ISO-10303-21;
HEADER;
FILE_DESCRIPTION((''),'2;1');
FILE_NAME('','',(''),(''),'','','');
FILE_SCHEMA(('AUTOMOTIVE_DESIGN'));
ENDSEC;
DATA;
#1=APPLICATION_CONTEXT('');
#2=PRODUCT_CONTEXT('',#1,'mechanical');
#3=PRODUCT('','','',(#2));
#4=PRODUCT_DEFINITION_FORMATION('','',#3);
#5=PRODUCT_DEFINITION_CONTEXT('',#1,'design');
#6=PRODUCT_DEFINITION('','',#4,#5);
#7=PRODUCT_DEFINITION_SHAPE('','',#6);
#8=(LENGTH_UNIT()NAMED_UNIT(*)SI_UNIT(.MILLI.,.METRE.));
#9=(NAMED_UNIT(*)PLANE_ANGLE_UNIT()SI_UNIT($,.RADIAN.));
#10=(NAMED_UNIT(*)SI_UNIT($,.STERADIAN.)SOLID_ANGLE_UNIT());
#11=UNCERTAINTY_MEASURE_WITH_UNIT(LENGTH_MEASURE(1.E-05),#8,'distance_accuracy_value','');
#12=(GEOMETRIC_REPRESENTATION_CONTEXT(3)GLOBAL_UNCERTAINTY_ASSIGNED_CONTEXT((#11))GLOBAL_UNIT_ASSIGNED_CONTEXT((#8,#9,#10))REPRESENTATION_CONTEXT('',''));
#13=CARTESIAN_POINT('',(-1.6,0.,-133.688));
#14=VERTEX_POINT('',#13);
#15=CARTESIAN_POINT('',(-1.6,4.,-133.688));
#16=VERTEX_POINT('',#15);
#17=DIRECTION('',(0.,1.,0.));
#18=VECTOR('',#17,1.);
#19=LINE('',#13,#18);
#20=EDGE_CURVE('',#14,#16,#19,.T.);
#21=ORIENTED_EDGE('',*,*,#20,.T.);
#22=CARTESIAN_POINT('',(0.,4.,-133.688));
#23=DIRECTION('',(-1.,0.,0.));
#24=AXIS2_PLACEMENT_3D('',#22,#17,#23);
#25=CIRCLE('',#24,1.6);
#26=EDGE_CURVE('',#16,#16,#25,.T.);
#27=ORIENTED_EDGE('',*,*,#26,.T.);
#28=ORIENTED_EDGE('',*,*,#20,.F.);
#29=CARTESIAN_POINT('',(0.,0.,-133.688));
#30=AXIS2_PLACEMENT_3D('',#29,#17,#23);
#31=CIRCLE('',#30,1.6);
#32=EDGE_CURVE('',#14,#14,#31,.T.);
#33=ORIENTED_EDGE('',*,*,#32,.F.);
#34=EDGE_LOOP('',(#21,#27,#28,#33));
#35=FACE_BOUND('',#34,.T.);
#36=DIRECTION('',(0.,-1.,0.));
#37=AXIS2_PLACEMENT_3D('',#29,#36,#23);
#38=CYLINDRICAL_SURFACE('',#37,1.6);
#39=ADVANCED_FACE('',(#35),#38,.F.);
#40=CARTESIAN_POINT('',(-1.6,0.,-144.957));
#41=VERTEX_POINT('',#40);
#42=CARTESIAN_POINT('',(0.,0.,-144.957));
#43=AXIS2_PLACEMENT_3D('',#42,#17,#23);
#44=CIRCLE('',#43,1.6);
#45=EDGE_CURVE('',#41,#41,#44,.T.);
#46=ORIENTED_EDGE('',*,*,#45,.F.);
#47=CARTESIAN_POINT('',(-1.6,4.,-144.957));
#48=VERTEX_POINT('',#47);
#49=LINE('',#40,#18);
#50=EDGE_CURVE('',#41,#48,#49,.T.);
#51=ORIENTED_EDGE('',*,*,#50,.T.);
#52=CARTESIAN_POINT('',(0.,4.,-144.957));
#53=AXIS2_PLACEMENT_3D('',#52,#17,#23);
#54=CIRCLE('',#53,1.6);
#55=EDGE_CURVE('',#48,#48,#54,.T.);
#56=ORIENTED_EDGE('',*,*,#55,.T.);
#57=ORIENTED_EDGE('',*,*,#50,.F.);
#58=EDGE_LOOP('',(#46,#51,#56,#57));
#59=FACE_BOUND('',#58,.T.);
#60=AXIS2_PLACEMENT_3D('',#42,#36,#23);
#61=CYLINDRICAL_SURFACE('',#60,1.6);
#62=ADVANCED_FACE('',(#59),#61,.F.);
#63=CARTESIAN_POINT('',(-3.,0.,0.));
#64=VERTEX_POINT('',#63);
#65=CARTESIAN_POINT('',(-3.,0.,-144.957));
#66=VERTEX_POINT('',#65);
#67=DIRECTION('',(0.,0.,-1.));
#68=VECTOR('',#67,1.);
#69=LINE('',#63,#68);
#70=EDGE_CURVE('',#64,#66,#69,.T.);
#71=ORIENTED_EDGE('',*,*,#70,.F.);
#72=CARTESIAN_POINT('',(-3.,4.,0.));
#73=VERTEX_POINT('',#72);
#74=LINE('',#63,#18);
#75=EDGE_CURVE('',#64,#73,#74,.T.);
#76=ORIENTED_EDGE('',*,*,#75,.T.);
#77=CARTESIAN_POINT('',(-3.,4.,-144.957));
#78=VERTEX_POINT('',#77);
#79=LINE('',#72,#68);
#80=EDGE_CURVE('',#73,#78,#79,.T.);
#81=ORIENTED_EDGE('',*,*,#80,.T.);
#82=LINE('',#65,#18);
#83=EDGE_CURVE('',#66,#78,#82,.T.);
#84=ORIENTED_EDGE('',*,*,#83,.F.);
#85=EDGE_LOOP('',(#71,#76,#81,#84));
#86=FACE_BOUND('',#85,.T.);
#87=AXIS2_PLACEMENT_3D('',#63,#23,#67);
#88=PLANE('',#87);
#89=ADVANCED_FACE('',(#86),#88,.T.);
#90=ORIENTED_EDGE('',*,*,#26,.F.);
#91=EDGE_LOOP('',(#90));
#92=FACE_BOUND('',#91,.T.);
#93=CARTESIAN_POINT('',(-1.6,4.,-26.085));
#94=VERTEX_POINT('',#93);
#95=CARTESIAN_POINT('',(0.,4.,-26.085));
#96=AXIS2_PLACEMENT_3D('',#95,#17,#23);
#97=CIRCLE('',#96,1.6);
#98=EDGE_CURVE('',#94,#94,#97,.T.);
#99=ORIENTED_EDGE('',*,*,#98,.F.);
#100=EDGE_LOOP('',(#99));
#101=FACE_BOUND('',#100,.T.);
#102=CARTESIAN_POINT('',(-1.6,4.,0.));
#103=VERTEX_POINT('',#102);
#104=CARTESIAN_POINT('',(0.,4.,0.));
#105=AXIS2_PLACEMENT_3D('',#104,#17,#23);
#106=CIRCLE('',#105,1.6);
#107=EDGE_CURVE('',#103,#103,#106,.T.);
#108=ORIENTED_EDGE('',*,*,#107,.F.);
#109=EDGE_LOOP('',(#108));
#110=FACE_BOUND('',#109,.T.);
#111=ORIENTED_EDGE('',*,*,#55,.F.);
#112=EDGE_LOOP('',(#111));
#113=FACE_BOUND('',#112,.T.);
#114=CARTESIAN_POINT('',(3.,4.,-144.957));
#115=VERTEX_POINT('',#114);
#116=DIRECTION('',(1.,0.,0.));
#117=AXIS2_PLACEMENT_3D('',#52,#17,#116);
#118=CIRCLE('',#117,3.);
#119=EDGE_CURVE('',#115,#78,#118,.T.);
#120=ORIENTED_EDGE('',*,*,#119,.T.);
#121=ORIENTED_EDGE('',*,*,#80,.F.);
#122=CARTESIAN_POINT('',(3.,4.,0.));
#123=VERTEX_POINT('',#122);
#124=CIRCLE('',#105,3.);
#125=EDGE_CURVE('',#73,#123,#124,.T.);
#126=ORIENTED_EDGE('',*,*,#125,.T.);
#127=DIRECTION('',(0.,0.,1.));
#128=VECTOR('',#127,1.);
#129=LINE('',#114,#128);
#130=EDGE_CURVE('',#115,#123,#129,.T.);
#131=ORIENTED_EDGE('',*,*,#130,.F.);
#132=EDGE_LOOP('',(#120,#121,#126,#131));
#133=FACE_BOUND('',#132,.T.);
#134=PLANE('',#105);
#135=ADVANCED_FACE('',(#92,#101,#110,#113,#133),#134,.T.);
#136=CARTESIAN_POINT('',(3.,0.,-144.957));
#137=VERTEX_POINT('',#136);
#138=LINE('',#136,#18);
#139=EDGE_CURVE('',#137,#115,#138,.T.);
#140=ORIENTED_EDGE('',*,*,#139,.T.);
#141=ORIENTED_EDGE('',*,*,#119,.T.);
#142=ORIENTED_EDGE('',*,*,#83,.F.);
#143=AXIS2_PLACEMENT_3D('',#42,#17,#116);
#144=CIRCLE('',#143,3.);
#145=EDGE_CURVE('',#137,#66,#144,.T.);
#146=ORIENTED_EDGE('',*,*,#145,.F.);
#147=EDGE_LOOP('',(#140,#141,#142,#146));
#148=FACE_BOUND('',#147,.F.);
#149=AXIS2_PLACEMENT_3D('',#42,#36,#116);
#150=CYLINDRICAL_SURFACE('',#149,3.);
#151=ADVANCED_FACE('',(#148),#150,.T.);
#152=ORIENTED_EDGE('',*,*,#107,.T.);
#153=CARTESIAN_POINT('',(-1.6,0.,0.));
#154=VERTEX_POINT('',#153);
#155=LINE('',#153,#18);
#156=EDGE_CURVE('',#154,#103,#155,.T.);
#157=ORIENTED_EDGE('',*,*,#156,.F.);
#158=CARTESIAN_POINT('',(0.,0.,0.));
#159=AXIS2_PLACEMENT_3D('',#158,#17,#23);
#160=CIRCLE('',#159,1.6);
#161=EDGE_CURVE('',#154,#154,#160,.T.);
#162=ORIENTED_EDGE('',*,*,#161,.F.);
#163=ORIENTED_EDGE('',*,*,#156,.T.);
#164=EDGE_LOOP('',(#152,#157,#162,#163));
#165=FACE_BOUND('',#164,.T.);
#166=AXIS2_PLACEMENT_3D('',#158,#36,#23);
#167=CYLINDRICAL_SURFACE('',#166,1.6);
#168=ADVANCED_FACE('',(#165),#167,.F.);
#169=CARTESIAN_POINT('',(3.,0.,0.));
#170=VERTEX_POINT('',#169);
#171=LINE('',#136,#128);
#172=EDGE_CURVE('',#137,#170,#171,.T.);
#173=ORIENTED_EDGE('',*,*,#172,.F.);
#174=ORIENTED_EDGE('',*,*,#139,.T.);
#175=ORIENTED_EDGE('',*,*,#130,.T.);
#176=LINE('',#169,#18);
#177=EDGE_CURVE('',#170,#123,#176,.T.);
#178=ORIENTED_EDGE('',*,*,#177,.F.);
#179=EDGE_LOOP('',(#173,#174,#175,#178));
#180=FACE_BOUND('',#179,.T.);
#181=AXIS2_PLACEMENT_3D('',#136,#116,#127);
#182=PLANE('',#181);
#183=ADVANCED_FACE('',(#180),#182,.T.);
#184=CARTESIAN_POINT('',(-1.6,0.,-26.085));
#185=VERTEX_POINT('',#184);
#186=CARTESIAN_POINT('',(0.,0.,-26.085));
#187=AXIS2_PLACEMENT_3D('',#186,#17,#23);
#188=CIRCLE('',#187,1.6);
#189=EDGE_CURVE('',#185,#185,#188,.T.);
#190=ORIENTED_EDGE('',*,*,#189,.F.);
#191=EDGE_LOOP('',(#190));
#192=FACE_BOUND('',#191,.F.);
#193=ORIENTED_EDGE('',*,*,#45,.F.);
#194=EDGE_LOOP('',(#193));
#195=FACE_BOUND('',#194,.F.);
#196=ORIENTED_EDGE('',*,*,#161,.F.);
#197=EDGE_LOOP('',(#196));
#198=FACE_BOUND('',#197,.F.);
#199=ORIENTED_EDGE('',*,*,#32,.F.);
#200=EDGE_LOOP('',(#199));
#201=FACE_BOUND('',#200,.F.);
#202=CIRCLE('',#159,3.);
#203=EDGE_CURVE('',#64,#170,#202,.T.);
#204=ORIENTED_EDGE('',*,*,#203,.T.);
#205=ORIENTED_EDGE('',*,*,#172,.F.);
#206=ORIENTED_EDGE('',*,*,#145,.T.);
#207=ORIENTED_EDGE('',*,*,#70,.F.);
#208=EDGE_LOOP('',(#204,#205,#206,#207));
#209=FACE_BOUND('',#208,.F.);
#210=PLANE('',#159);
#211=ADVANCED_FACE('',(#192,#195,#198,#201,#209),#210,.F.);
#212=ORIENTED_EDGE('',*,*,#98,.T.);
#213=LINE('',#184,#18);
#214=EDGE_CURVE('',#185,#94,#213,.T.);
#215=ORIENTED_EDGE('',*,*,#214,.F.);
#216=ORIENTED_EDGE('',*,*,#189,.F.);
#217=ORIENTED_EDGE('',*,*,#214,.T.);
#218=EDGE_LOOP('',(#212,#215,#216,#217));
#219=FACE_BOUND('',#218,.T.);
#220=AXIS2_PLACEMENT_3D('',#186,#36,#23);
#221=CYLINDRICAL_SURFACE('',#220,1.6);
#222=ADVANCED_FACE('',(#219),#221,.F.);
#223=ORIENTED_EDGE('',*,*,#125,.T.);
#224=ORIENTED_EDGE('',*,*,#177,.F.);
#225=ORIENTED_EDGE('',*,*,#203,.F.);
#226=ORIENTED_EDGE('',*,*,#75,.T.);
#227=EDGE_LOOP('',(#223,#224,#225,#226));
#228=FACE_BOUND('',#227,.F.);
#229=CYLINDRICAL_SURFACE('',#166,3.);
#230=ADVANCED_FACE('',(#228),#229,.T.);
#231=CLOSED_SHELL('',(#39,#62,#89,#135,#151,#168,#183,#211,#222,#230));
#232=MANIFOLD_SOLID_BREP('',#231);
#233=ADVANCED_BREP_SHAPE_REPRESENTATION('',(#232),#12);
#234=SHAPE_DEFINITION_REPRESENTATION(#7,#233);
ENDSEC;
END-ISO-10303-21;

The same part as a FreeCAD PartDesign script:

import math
import FreeCAD as App
import Part
import Sketcher

V = App.Vector
Q = App.Units.Quantity

doc = App.newDocument("Part")
body = doc.addObject("PartDesign::Body", "Body")

sketch1 = body.newObject("Sketcher::SketchObject", "Sketch")
sketch1.AttachmentSupport = (doc.getObject("XZ_Plane"), [""])
sketch1.MapMode = "FlatFace"
sketch1.addGeometry(Part.LineSegment(V(-3, -145, 0), V(-3, 0, 0)), False)
sketch1.addGeometry(Part.ArcOfCircle(Part.Circle(V(0, 0, 0), V(0, 0, 1), 3), math.radians(0), math.radians(180)), False)
sketch1.addGeometry(Part.LineSegment(V(3, 0, 0), V(3, -145, 0)), False)
sketch1.addGeometry(Part.ArcOfCircle(Part.Circle(V(0, -145, 0), V(0, 0, 1), 3), math.radians(180), math.radians(360)), False)
sketch1.addGeometry(Part.Circle(V(0, -145, 0), V(0, 0, 1), 1.6), False)
sketch1.addGeometry(Part.Circle(V(0, -133.7, 0), V(0, 0, 1), 1.6), False)
sketch1.addGeometry(Part.Circle(V(0, -26.1, 0), V(0, 0, 1), 1.6), False)
sketch1.addGeometry(Part.Circle(V(0, 0, 0), V(0, 0, 1), 1.6), False)
sketch1.addConstraint(Sketcher.Constraint("Tangent", 0, 2, 1, 2))
sketch1.addConstraint(Sketcher.Constraint("Tangent", 1, 1, 2, 1))
sketch1.addConstraint(Sketcher.Constraint("Tangent", 2, 2, 3, 2))
sketch1.addConstraint(Sketcher.Constraint("Tangent", 3, 1, 0, 1))
sketch1.addConstraint(Sketcher.Constraint("Vertical", 0))
sketch1.addConstraint(Sketcher.Constraint("Vertical", 2))
sketch1.addConstraint(Sketcher.Constraint("Coincident", 1, 3, -1, 1))
sketch1.addConstraint(Sketcher.Constraint("Coincident", 7, 3, -1, 1))
sketch1.addConstraint(Sketcher.Constraint("Coincident", 4, 3, 3, 3))
sketch1.addConstraint(Sketcher.Constraint("Equal", 4, 5))
sketch1.addConstraint(Sketcher.Constraint("Equal", 5, 6))
sketch1.addConstraint(Sketcher.Constraint("Equal", 6, 7))
sketch1.addConstraint(Sketcher.Constraint("PointOnObject", 5, 3, -2))
sketch1.addConstraint(Sketcher.Constraint("PointOnObject", 6, 3, -2))
sketch1.addConstraint(Sketcher.Constraint("Radius", 1, Q("3 mm")))
sketch1.addConstraint(Sketcher.Constraint("Diameter", 4, Q("3.2 mm")))
sketch1.addConstraint(Sketcher.Constraint("DistanceY", 0, 1, 0, 2, Q("144.957 mm")))
sketch1.addConstraint(Sketcher.Constraint("DistanceY", 5, 3, -1, 1, Q("133.688 mm")))
sketch1.addConstraint(Sketcher.Constraint("DistanceY", 6, 3, -1, 1, Q("26.085 mm")))
pad1 = body.newObject("PartDesign::Pad", "Pad")
pad1.Profile = sketch1
pad1.Length = 4
pad1.Reversed = True

doc.recompute()
